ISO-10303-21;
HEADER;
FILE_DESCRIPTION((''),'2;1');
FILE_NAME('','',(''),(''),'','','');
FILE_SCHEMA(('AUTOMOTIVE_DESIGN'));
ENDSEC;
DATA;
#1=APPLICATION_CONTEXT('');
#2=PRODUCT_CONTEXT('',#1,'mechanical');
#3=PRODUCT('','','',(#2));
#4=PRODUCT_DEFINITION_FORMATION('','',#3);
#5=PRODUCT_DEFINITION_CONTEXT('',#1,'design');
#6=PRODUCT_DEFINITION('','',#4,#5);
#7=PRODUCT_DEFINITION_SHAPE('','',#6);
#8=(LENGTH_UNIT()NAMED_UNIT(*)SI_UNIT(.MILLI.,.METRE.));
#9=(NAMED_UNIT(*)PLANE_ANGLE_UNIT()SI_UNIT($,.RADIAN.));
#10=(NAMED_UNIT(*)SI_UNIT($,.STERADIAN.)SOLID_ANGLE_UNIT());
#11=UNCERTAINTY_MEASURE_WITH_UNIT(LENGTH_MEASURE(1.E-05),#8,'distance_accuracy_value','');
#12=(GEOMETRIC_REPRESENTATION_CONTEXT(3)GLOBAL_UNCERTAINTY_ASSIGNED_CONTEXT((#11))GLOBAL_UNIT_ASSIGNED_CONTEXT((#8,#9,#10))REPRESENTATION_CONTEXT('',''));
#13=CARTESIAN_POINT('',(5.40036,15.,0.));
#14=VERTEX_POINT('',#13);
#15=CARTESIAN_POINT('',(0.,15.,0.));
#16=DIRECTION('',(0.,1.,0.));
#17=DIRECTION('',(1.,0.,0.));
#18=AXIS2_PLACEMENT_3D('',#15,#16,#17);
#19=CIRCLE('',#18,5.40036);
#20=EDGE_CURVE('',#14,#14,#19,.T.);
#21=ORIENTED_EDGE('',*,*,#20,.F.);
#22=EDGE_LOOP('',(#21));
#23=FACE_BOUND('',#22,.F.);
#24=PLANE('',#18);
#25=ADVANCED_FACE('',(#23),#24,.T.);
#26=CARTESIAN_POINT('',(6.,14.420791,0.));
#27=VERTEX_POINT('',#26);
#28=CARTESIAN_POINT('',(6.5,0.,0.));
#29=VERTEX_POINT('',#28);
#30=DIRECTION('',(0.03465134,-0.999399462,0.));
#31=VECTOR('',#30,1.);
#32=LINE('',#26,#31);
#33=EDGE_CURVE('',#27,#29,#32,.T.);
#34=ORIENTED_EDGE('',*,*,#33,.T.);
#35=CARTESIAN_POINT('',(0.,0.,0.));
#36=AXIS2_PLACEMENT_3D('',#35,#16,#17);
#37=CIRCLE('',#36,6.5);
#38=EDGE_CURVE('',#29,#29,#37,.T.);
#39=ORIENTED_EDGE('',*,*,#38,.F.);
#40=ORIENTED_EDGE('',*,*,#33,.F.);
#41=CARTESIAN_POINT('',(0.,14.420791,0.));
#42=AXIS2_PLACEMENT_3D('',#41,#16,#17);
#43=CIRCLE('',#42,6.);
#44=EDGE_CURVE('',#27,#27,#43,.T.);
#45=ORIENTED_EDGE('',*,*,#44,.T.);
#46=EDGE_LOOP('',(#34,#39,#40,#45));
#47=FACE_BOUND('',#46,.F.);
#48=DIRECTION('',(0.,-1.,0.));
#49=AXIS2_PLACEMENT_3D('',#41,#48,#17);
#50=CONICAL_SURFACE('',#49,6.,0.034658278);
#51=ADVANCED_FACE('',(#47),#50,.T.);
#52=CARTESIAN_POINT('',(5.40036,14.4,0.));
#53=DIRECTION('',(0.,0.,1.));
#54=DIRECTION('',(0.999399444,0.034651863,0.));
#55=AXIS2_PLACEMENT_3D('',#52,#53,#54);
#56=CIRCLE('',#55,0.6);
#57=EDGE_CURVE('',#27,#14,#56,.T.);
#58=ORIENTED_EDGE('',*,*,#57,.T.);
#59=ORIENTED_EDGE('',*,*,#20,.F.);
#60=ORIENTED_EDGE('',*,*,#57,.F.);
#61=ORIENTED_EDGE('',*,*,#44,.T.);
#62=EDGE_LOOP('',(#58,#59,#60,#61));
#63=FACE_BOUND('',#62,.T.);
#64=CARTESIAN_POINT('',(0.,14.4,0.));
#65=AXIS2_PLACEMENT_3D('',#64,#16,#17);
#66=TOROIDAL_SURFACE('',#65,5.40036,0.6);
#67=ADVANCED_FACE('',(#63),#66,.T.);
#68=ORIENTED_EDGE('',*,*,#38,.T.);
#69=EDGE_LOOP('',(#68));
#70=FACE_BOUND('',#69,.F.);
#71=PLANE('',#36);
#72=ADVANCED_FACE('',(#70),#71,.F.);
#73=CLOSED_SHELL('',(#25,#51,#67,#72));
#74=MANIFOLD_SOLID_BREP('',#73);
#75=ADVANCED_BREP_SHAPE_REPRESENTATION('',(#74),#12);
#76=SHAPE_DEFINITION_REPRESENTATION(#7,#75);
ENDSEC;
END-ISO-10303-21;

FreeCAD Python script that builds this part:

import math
import FreeCAD as App
import Part
import Sketcher

doc = App.newDocument("Part")
body = doc.addObject("PartDesign::Body", "Body")

# Sketch on XY plane
sketch1 = doc.addObject("Sketcher::SketchObject", "Sketch")
body.addObject(sketch1)
sketch1.AttachmentSupport = (doc.XY_Plane, [""])
sketch1.MapMode = "FlatFace"
sketch1.addGeometry(Part.LineSegment(App.Vector(0, 15, 0), App.Vector(0, 0, 0)), False)
sketch1.addGeometry(Part.LineSegment(App.Vector(0, 0, 0), App.Vector(6.5, 0, 0)), False)
sketch1.addGeometry(Part.LineSegment(App.Vector(6.5, 0, 0), App.Vector(6, 14.4, 0)), False)
sketch1.addGeometry(Part.ArcOfCircle(Part.Circle(App.Vector(5.4, 14.4, 0), App.Vector(0, 0, 1), 0.6), math.radians(2), math.radians(90)), False)
sketch1.addGeometry(Part.LineSegment(App.Vector(5.4, 15, 0), App.Vector(0, 15, 0)), False)
sketch1.addConstraint(Sketcher.Constraint("Coincident", 0, 2, 1, 1))
sketch1.addConstraint(Sketcher.Constraint("Coincident", 1, 2, 2, 1))
sketch1.addConstraint(Sketcher.Constraint("Tangent", 2, 2, 3, 1))
sketch1.addConstraint(Sketcher.Constraint("Tangent", 3, 2, 4, 1))
sketch1.addConstraint(Sketcher.Constraint("Coincident", 4, 2, 0, 1))
sketch1.addConstraint(Sketcher.Constraint("Vertical", 0))
sketch1.addConstraint(Sketcher.Constraint("Horizontal", 1))
sketch1.addConstraint(Sketcher.Constraint("Horizontal", 4))
sketch1.addConstraint(Sketcher.Constraint("Coincident", 0, 2, -1, 1))
sketch1.addConstraint(Sketcher.Constraint("Radius", 3, 0.6))
sketch1.addConstraint(Sketcher.Constraint("DistanceY", 0, 2, 0, 1, 15.0))
sketch1.addConstraint(Sketcher.Constraint("DistanceX", 1, 1, 1, 2, 6.5))
sketch1.addConstraint(Sketcher.Constraint("DistanceX", -1, 1, 2, 2, 6.0))
revolution = doc.addObject("PartDesign::Revolution", "Revolution")
body.addObject(revolution)
revolution.Profile = sketch1
revolution.ReferenceAxis = (sketch1, ["V_Axis"])
revolution.Angle = 360

doc.recompute()
